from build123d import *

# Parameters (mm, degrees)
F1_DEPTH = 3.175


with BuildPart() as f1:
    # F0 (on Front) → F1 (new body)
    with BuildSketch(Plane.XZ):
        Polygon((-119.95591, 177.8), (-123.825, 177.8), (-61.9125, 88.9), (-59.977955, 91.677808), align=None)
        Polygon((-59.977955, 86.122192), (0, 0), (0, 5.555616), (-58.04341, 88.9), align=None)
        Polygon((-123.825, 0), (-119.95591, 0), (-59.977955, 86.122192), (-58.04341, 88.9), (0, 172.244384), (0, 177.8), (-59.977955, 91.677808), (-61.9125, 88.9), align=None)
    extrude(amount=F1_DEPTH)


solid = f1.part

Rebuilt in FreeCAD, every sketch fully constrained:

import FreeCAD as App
import Part
import Sketcher
Q = App.Units.Quantity


def add_polygon(sketch, points):
    """Adds a closed chain of lines whose ends are joined by coincident constraints."""
    first, n = sketch.GeometryCount, len(points)
    for a, b in zip(points, points[1:] + points[:1]):
        sketch.addGeometry(Part.LineSegment(App.Vector(*a, 0), App.Vector(*b, 0)), False)
    for i in range(n):
        sketch.addConstraint(Sketcher.Constraint("Coincident", first + i, 2, first + (i + 1) % n, 1))

doc = App.newDocument("Part")
params = doc.addObject("Spreadsheet::Sheet", "Params")
for row, (alias, value) in enumerate([
    ("pad1_length", "0.125 in"),
], start=1):
    params.set(f"A{row}", alias)
    params.set(f"B{row}", "=" + value)
    params.setAlias(f"B{row}", alias)

body = doc.addObject("PartDesign::Body", "Body")

# Sketch on XZ plane
sketch1 = body.newObject("Sketcher::SketchObject", "Sketch")
sketch1.AttachmentSupport = (doc.getObject("XZ_Plane"), [""])
sketch1.MapMode = "FlatFace"
add_polygon(sketch1, [(-120, 177.8), (-123.8, 177.8), (-61.9, 88.9), (-123.8, 0), (-120, 0), (-60, 86.1), (0, 0), (0, 5.6), (-58, 88.9), (0, 172.2), (0, 177.8), (-60, 91.7)])  # lines 0-11
sketch1.addConstraint([
    Sketcher.Constraint("Horizontal", 0),
    Sketcher.Constraint("Horizontal", 3),
    Sketcher.Constraint("Vertical", 6),
    Sketcher.Constraint("Vertical", 9),
    Sketcher.Constraint("Coincident", 5, 2, -1, 1),
    Sketcher.Constraint("PointOnObject", 2, 2, -1),
    Sketcher.Constraint("PointOnObject", 8, 2, -2),
    Sketcher.Constraint("Parallel", 2, 4),
    Sketcher.Constraint("Parallel", 1, 5),
    Sketcher.Constraint("Parallel", 5, 7),
    Sketcher.Constraint("Parallel", 4, 8),
    Sketcher.Constraint("Parallel", 8, 10),
    Sketcher.Constraint("Parallel", 7, 11),
    Sketcher.Constraint("Horizontal", 1, 2, 7, 2),
    Sketcher.Constraint("Horizontal", 0, 2, 9, 2),
    Sketcher.Constraint("Vertical", 0, 2, 2, 2),
    Sketcher.Constraint("Vertical", 4, 2, 10, 2),
    Sketcher.Constraint("Vertical", 3, 2, 11, 2),
    Sketcher.Constraint("DistanceY", -1, 1, 0, 2, Q("7 in")),
    Sketcher.Constraint("DistanceX", 0, 2, -1, 1, Q("4.875 in")),
    Sketcher.Constraint("DistanceX", 1, 2, -1, 1, Q("2.4375 in")),
    Sketcher.Constraint("DistanceX", 3, 2, 7, 2, Q("2.4375 in")),
    Sketcher.Constraint("DistanceX", 0, 2, 0, 1, Q("3.86909 mm")),
])
pad1 = body.newObject("PartDesign::Pad", "Pad")
pad1.Profile = sketch1
pad1.setExpression("Length", "Params.pad1_length")

doc.recompute()
